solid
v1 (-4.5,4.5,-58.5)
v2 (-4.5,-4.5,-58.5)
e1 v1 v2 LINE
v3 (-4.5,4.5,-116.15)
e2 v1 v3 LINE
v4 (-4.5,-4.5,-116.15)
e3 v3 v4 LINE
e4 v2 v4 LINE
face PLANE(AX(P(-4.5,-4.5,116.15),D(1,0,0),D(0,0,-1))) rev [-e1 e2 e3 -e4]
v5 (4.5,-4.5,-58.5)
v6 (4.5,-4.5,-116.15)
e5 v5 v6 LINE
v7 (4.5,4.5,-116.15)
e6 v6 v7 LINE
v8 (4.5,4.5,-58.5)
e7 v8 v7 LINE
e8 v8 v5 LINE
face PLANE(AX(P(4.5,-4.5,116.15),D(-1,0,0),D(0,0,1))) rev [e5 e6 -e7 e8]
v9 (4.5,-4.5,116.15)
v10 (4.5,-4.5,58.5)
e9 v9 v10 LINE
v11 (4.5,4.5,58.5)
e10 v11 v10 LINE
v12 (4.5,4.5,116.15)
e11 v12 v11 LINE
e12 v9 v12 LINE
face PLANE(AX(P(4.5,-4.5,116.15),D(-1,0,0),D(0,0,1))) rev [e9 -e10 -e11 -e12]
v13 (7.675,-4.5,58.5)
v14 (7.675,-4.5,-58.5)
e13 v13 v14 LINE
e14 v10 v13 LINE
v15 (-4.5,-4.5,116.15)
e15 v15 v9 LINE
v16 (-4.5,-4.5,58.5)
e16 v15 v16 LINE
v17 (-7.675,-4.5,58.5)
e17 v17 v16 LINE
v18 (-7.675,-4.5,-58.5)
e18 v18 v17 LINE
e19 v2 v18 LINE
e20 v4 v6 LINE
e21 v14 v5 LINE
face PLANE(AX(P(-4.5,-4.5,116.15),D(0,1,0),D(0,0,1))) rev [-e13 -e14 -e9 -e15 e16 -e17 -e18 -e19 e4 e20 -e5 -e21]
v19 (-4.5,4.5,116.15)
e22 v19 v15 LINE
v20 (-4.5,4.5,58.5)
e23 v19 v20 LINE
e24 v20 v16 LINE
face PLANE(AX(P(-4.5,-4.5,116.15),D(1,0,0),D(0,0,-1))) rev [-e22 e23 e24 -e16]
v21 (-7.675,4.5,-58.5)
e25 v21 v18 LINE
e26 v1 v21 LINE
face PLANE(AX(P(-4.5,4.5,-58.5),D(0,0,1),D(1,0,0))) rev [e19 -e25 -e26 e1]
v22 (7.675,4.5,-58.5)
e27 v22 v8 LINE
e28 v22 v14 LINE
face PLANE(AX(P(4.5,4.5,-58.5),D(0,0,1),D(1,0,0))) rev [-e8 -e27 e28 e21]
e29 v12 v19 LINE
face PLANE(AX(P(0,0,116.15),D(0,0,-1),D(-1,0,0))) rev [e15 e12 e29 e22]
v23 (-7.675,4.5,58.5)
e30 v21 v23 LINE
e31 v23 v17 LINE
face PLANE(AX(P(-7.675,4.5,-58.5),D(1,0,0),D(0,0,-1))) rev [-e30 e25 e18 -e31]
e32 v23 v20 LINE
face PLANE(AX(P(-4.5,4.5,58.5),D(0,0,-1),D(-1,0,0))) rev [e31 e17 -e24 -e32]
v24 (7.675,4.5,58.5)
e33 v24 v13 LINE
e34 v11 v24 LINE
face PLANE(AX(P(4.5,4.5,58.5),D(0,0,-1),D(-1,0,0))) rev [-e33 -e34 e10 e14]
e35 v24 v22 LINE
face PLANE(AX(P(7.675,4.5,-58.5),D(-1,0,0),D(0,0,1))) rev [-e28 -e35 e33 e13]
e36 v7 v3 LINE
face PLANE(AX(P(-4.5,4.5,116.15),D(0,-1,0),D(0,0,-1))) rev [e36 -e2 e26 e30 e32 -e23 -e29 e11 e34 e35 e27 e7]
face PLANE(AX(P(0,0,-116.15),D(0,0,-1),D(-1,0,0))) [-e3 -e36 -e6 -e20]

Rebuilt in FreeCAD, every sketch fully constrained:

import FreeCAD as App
import Part
import Sketcher

doc = App.newDocument("Part")
body = doc.addObject("PartDesign::Body", "Body")

sketch1 = body.newObject("Sketcher::SketchObject", "Sketch")
sketch1.AttachmentSupport = (doc.getObject("XY_Plane"), [""])
sketch1.MapMode = "FlatFace"
sketch1.addGeometry(Part.LineSegment(App.Vector(-4, 4, 0), App.Vector(-4, -4, 0)), False)
sketch1.addGeometry(Part.LineSegment(App.Vector(-4, -4, 0), App.Vector(4, -4, 0)), False)
sketch1.addGeometry(Part.LineSegment(App.Vector(4, -4, 0), App.Vector(4, 4, 0)), False)
sketch1.addGeometry(Part.LineSegment(App.Vector(4, 4, 0), App.Vector(-4, 4, 0)), False)
sketch1.addConstraint(Sketcher.Constraint("Coincident", 0, 2, 1, 1))
sketch1.addConstraint(Sketcher.Constraint("Coincident", 1, 2, 2, 1))
sketch1.addConstraint(Sketcher.Constraint("Coincident", 2, 2, 3, 1))
sketch1.addConstraint(Sketcher.Constraint("Coincident", 3, 2, 0, 1))
sketch1.addConstraint(Sketcher.Constraint("Vertical", 0))
sketch1.addConstraint(Sketcher.Constraint("Horizontal", 1))
sketch1.addConstraint(Sketcher.Constraint("Vertical", 2))
sketch1.addConstraint(Sketcher.Constraint("Horizontal", 3))
sketch1.addConstraint(Sketcher.Constraint("Symmetric", 0, 2, 2, 2, -1, 1))
sketch1.addConstraint(Sketcher.Constraint("Equal", 3, 0))
sketch1.addConstraint(Sketcher.Constraint("DistanceX", 1, 1, 1, 2, 9.0))
pad1 = body.newObject("PartDesign::Pad", "Pad")
pad1.Profile = sketch1
pad1.Length = 232.3
pad1.Midplane = True

sketch2 = body.newObject("Sketcher::SketchObject", "Sketch001")
sketch2.AttachmentSupport = (doc.getObject("XZ_Plane"), [""])
sketch2.MapMode = "FlatFace"
sketch2.addGeometry(Part.LineSegment(App.Vector(4.5, -58.5, 0), App.Vector(4.5, 58.5, 0)), False)
sketch2.addGeometry(Part.LineSegment(App.Vector(4.5, 58.5, 0), App.Vector(7.7, 58.5, 0)), False)
sketch2.addGeometry(Part.LineSegment(App.Vector(7.7, 58.5, 0), App.Vector(7.7, -58.5, 0)), False)
sketch2.addGeometry(Part.LineSegment(App.Vector(7.7, -58.5, 0), App.Vector(4.5, -58.5, 0)), False)
sketch2.addGeometry(Part.LineSegment(App.Vector(-7.7, -58.5, 0), App.Vector(-7.7, 58.5, 0)), False)
sketch2.addGeometry(Part.LineSegment(App.Vector(-7.7, 58.5, 0), App.Vector(-4.5, 58.5, 0)), False)
sketch2.addGeometry(Part.LineSegment(App.Vector(-4.5, 58.5, 0), App.Vector(-4.5, -58.5, 0)), False)
sketch2.addGeometry(Part.LineSegment(App.Vector(-4.5, -58.5, 0), App.Vector(-7.7, -58.5, 0)), False)
sketch2.addConstraint(Sketcher.Constraint("Coincident", 0, 2, 1, 1))
sketch2.addConstraint(Sketcher.Constraint("Coincident", 1, 2, 2, 1))
sketch2.addConstraint(Sketcher.Constraint("Coincident", 2, 2, 3, 1))
sketch2.addConstraint(Sketcher.Constraint("Coincident", 3, 2, 0, 1))
sketch2.addConstraint(Sketcher.Constraint("Coincident", 4, 2, 5, 1))
sketch2.addConstraint(Sketcher.Constraint("Coincident", 5, 2, 6, 1))
sketch2.addConstraint(Sketcher.Constraint("Coincident", 6, 2, 7, 1))
sketch2.addConstraint(Sketcher.Constraint("Coincident", 7, 2, 4, 1))
sketch2.addConstraint(Sketcher.Constraint("Vertical", 0))
sketch2.addConstraint(Sketcher.Constraint("Horizontal", 1))
sketch2.addConstraint(Sketcher.Constraint("Vertical", 2))
sketch2.addConstraint(Sketcher.Constraint("Horizontal", 3))
sketch2.addConstraint(Sketcher.Constraint("Vertical", 4))
sketch2.addConstraint(Sketcher.Constraint("Horizontal", 5))
sketch2.addConstraint(Sketcher.Constraint("Vertical", 6))
sketch2.addConstraint(Sketcher.Constraint("Horizontal", 7))
sketch2.addConstraint(Sketcher.Constraint("Symmetric", 2, 2, 4, 2, -1, 1))
sketch2.addConstraint(Sketcher.Constraint("Symmetric", 0, 2, 6, 2, -1, 1))
sketch2.addConstraint(Sketcher.Constraint("Horizontal", 1, 2, 4, 2))
sketch2.addConstraint(Sketcher.Constraint("DistanceY", 0, 1, 0, 2, 117.0))
sketch2.addConstraint(Sketcher.Constraint("DistanceX", 5, 2, 0, 2, 9.0))
sketch2.addConstraint(Sketcher.Constraint("DistanceX", 1, 1, 1, 2, 3.175))
pad2 = body.newObject("PartDesign::Pad", "Pad001")
pad2.Profile = sketch2
pad2.Length = 9
pad2.Midplane = True

doc.recompute()
